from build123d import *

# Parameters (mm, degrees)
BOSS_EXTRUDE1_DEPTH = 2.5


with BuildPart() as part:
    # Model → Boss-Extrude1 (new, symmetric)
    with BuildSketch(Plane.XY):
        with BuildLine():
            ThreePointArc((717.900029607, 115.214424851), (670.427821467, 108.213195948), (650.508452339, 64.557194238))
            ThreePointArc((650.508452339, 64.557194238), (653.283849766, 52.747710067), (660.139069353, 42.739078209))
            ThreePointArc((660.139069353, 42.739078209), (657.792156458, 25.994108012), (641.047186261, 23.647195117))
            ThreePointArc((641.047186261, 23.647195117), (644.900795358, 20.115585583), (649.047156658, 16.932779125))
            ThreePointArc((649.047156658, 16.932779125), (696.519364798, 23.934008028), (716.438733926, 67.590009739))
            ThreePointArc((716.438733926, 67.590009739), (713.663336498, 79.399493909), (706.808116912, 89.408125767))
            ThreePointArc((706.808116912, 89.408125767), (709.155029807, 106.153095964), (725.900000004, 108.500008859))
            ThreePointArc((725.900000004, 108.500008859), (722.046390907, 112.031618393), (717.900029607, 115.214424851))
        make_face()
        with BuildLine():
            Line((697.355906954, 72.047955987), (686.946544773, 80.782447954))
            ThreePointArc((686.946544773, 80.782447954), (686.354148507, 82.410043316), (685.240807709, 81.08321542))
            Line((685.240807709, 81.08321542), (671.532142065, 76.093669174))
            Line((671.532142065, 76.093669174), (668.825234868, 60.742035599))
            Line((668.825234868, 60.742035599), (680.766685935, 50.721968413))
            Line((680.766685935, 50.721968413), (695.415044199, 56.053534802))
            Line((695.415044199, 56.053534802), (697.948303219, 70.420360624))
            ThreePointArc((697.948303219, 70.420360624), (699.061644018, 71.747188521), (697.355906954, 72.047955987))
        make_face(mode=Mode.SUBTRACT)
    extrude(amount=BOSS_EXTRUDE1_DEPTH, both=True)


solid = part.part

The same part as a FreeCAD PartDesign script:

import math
import FreeCAD as App
import Part
import Sketcher

V = App.Vector
Q = App.Units.Quantity

doc = App.newDocument("Part")
params = doc.addObject("Spreadsheet::Sheet", "Params")
for row, (alias, value) in enumerate([
    ("sketch1_radius", "33 mm"),
    ("sketch1_radius2", "60 mm"),
    ("sketch1_radius3", "1 mm"),
    ("pad1_length", "5 mm"),
], start=1):
    params.set(f"A{row}", alias)
    params.set(f"B{row}", "=" + value)
    params.setAlias(f"B{row}", alias)

body = doc.addObject("PartDesign::Body", "Body")

sketch1 = body.newObject("Sketcher::SketchObject", "Sketch")
sketch1.AttachmentSupport = (doc.getObject("XY_Plane"), [""])
sketch1.MapMode = "FlatFace"
sketch1.addGeometry([
    Part.ArcOfCircle(Part.Circle(V(700.599975, 68.073832, 0), V(0, 0, 1), 50.214812), math.radians(69.847445), math.radians(184.015818)),
    Part.ArcOfCircle(Part.Circle(V(683.473593, 66.073602, 0), V(0, 0, 1), 33), math.radians(-177.366231), math.radians(-135)),
    Part.ArcOfCircle(Part.Circle(V(647.863663, 35.922601, 0), V(0, 0, 1), 14.04101), math.radians(-119.043214), math.radians(29.043214)),
    Part.ArcOfCircle(Part.Circle(V(683.473593, 66.073602, 0), V(0, 0, 1), 60), math.radians(-135), math.radians(-125.013816)),
    Part.ArcOfCircle(Part.Circle(V(666.347211, 64.073372, 0), V(0, 0, 1), 50.214812), math.radians(-110.152555), math.radians(4.015818)),
    Part.ArcOfCircle(Part.Circle(V(683.473593, 66.073602, 0), V(0, 0, 1), 33), math.radians(2.633769), math.radians(45)),
    Part.ArcOfCircle(Part.Circle(V(719.083523, 96.224603, 0), V(0, 0, 1), 14.04101), math.radians(60.956786), math.radians(209.043214)),
    Part.ArcOfCircle(Part.Circle(V(683.473593, 66.073602, 0), V(0, 0, 1), 60), math.radians(45), math.radians(54.986184)),
    Part.LineSegment(V(686.946545, 80.782448, 0), V(697.355907, 72.047956, 0)),
    Part.ArcOfCircle(Part.Circle(V(698.121951, 71.405168, 0), V(0, 0, 1), 1), math.radians(-100), math.radians(140)),
    Part.LineSegment(V(697.948303, 70.420361, 0), V(695.415044, 56.053535, 0)),
    Part.LineSegment(V(695.415044, 56.053535, 0), V(680.766686, 50.721968, 0)),
    Part.LineSegment(V(680.766686, 50.721968, 0), V(668.825235, 60.742036, 0)),
    Part.LineSegment(V(668.825235, 60.742036, 0), V(671.532142, 76.093669, 0)),
    Part.LineSegment(V(671.532142, 76.093669, 0), V(685.240808, 81.083215, 0)),
    Part.ArcOfCircle(Part.Circle(V(686.1805, 81.425236, 0), V(0, 0, 1), 1), math.radians(-40), math.radians(200)),
], False)
sketch1.addConstraint([
    Sketcher.Constraint("Coincident", 0, 2, 1, 1),
    Sketcher.Constraint("Coincident", 1, 2, 2, 2),
    Sketcher.Constraint("Coincident", 2, 1, 3, 1),
    Sketcher.Constraint("Coincident", 3, 2, 4, 1),
    Sketcher.Constraint("Coincident", 4, 2, 5, 1),
    Sketcher.Constraint("Coincident", 5, 2, 6, 2),
    Sketcher.Constraint("Coincident", 6, 1, 7, 1),
    Sketcher.Constraint("Coincident", 7, 2, 0, 1),
    Sketcher.Constraint("Coincident", 8, 2, 9, 2),
    Sketcher.Constraint("Coincident", 9, 1, 10, 1),
    Sketcher.Constraint("Coincident", 10, 2, 11, 1),
    Sketcher.Constraint("Coincident", 11, 2, 12, 1),
    Sketcher.Constraint("Coincident", 12, 2, 13, 1),
    Sketcher.Constraint("Coincident", 13, 2, 14, 1),
    Sketcher.Constraint("Coincident", 14, 2, 15, 2),
    Sketcher.Constraint("Coincident", 15, 1, 8, 1),
    Sketcher.Constraint("Coincident", 3, 3, 1, 3),
    Sketcher.Constraint("Coincident", 5, 3, 1, 3),
    Sketcher.Constraint("Coincident", 7, 3, 1, 3),
    Sketcher.Constraint("Equal", 0, 4),
    Sketcher.Constraint("Equal", 1, 5),
    Sketcher.Constraint("Equal", 2, 6),
    Sketcher.Constraint("Equal", 3, 7),
    Sketcher.Constraint("Equal", 9, 15),
    Sketcher.Constraint("Parallel", 8, 12),
    Sketcher.Constraint("Parallel", 10, 13),
    Sketcher.Constraint("Parallel", 11, 14),
    Sketcher.Constraint("Equal", 11, 12),
    Sketcher.Constraint("Equal", 12, 13),
    Sketcher.Constraint("Equal", 10, 14),
    Sketcher.Constraint("Radius", 1, 33.0),
    Sketcher.Constraint("Radius", 3, 60.0),
    Sketcher.Constraint("Radius", 9, 1.0),
    Sketcher.Constraint("Angle", 8, Q("-40 deg")),
    Sketcher.Constraint("Angle", 10, Q("-100 deg")),
    Sketcher.Constraint("Angle", 11, Q("-160 deg")),
    Sketcher.Constraint("DistanceX", -1, 1, 6, 1, 725.9),
    Sketcher.Constraint("Radius", 2, 14.04101),
    Sketcher.Constraint("DistanceY", 2, 1, 0, 2, 40.909999),
    Sketcher.Constraint("DistanceY", 4, 2, 6, 1, 40.909999),
    Sketcher.Constraint("Radius", 0, 50.214812),
    Sketcher.Constraint("DistanceY", 2, 3, 1, 3, 30.151001),
    Sketcher.Constraint("DistanceY", 1, 3, 6, 3, 30.151001),
    Sketcher.Constraint("DistanceY", -1, 1, 1, 3, 66.073602),
    Sketcher.Constraint("DistanceX", -1, 1, 15, 3, 686.1805),
    Sketcher.Constraint("DistanceY", 3, 2, 1, 2, 25.806299),
    Sketcher.Constraint("DistanceY", 5, 2, 7, 2, 25.806299),
    Sketcher.Constraint("DistanceX", 14, 2, 8, 2, 12.115099),
    Sketcher.Constraint("DistanceX", -1, 1, 4, 3, 666.347211),
    Sketcher.Constraint("DistanceY", -1, 1, 4, 3, 64.073372),
    Sketcher.Constraint("DistanceX", -1, 1, 9, 3, 698.121951),
    Sketcher.Constraint("DistanceY", -1, 1, 9, 3, 71.405168),
    Sketcher.Constraint("DistanceY", -1, 1, 9, 1, 70.420361),
    Sketcher.Constraint("DistanceY", -1, 1, 11, 2, 50.721968),
    Sketcher.Constraint("DistanceY", -1, 1, 13, 2, 76.093669),
])
sketch1.setExpression("Constraints[30]", "Params.sketch1_radius")
sketch1.setExpression("Constraints[31]", "Params.sketch1_radius2")
sketch1.setExpression("Constraints[32]", "Params.sketch1_radius3")
pad1 = body.newObject("PartDesign::Pad", "Pad")
pad1.Profile = sketch1
pad1.setExpression("Length", "Params.pad1_length")
pad1.Midplane = True

doc.recompute()
